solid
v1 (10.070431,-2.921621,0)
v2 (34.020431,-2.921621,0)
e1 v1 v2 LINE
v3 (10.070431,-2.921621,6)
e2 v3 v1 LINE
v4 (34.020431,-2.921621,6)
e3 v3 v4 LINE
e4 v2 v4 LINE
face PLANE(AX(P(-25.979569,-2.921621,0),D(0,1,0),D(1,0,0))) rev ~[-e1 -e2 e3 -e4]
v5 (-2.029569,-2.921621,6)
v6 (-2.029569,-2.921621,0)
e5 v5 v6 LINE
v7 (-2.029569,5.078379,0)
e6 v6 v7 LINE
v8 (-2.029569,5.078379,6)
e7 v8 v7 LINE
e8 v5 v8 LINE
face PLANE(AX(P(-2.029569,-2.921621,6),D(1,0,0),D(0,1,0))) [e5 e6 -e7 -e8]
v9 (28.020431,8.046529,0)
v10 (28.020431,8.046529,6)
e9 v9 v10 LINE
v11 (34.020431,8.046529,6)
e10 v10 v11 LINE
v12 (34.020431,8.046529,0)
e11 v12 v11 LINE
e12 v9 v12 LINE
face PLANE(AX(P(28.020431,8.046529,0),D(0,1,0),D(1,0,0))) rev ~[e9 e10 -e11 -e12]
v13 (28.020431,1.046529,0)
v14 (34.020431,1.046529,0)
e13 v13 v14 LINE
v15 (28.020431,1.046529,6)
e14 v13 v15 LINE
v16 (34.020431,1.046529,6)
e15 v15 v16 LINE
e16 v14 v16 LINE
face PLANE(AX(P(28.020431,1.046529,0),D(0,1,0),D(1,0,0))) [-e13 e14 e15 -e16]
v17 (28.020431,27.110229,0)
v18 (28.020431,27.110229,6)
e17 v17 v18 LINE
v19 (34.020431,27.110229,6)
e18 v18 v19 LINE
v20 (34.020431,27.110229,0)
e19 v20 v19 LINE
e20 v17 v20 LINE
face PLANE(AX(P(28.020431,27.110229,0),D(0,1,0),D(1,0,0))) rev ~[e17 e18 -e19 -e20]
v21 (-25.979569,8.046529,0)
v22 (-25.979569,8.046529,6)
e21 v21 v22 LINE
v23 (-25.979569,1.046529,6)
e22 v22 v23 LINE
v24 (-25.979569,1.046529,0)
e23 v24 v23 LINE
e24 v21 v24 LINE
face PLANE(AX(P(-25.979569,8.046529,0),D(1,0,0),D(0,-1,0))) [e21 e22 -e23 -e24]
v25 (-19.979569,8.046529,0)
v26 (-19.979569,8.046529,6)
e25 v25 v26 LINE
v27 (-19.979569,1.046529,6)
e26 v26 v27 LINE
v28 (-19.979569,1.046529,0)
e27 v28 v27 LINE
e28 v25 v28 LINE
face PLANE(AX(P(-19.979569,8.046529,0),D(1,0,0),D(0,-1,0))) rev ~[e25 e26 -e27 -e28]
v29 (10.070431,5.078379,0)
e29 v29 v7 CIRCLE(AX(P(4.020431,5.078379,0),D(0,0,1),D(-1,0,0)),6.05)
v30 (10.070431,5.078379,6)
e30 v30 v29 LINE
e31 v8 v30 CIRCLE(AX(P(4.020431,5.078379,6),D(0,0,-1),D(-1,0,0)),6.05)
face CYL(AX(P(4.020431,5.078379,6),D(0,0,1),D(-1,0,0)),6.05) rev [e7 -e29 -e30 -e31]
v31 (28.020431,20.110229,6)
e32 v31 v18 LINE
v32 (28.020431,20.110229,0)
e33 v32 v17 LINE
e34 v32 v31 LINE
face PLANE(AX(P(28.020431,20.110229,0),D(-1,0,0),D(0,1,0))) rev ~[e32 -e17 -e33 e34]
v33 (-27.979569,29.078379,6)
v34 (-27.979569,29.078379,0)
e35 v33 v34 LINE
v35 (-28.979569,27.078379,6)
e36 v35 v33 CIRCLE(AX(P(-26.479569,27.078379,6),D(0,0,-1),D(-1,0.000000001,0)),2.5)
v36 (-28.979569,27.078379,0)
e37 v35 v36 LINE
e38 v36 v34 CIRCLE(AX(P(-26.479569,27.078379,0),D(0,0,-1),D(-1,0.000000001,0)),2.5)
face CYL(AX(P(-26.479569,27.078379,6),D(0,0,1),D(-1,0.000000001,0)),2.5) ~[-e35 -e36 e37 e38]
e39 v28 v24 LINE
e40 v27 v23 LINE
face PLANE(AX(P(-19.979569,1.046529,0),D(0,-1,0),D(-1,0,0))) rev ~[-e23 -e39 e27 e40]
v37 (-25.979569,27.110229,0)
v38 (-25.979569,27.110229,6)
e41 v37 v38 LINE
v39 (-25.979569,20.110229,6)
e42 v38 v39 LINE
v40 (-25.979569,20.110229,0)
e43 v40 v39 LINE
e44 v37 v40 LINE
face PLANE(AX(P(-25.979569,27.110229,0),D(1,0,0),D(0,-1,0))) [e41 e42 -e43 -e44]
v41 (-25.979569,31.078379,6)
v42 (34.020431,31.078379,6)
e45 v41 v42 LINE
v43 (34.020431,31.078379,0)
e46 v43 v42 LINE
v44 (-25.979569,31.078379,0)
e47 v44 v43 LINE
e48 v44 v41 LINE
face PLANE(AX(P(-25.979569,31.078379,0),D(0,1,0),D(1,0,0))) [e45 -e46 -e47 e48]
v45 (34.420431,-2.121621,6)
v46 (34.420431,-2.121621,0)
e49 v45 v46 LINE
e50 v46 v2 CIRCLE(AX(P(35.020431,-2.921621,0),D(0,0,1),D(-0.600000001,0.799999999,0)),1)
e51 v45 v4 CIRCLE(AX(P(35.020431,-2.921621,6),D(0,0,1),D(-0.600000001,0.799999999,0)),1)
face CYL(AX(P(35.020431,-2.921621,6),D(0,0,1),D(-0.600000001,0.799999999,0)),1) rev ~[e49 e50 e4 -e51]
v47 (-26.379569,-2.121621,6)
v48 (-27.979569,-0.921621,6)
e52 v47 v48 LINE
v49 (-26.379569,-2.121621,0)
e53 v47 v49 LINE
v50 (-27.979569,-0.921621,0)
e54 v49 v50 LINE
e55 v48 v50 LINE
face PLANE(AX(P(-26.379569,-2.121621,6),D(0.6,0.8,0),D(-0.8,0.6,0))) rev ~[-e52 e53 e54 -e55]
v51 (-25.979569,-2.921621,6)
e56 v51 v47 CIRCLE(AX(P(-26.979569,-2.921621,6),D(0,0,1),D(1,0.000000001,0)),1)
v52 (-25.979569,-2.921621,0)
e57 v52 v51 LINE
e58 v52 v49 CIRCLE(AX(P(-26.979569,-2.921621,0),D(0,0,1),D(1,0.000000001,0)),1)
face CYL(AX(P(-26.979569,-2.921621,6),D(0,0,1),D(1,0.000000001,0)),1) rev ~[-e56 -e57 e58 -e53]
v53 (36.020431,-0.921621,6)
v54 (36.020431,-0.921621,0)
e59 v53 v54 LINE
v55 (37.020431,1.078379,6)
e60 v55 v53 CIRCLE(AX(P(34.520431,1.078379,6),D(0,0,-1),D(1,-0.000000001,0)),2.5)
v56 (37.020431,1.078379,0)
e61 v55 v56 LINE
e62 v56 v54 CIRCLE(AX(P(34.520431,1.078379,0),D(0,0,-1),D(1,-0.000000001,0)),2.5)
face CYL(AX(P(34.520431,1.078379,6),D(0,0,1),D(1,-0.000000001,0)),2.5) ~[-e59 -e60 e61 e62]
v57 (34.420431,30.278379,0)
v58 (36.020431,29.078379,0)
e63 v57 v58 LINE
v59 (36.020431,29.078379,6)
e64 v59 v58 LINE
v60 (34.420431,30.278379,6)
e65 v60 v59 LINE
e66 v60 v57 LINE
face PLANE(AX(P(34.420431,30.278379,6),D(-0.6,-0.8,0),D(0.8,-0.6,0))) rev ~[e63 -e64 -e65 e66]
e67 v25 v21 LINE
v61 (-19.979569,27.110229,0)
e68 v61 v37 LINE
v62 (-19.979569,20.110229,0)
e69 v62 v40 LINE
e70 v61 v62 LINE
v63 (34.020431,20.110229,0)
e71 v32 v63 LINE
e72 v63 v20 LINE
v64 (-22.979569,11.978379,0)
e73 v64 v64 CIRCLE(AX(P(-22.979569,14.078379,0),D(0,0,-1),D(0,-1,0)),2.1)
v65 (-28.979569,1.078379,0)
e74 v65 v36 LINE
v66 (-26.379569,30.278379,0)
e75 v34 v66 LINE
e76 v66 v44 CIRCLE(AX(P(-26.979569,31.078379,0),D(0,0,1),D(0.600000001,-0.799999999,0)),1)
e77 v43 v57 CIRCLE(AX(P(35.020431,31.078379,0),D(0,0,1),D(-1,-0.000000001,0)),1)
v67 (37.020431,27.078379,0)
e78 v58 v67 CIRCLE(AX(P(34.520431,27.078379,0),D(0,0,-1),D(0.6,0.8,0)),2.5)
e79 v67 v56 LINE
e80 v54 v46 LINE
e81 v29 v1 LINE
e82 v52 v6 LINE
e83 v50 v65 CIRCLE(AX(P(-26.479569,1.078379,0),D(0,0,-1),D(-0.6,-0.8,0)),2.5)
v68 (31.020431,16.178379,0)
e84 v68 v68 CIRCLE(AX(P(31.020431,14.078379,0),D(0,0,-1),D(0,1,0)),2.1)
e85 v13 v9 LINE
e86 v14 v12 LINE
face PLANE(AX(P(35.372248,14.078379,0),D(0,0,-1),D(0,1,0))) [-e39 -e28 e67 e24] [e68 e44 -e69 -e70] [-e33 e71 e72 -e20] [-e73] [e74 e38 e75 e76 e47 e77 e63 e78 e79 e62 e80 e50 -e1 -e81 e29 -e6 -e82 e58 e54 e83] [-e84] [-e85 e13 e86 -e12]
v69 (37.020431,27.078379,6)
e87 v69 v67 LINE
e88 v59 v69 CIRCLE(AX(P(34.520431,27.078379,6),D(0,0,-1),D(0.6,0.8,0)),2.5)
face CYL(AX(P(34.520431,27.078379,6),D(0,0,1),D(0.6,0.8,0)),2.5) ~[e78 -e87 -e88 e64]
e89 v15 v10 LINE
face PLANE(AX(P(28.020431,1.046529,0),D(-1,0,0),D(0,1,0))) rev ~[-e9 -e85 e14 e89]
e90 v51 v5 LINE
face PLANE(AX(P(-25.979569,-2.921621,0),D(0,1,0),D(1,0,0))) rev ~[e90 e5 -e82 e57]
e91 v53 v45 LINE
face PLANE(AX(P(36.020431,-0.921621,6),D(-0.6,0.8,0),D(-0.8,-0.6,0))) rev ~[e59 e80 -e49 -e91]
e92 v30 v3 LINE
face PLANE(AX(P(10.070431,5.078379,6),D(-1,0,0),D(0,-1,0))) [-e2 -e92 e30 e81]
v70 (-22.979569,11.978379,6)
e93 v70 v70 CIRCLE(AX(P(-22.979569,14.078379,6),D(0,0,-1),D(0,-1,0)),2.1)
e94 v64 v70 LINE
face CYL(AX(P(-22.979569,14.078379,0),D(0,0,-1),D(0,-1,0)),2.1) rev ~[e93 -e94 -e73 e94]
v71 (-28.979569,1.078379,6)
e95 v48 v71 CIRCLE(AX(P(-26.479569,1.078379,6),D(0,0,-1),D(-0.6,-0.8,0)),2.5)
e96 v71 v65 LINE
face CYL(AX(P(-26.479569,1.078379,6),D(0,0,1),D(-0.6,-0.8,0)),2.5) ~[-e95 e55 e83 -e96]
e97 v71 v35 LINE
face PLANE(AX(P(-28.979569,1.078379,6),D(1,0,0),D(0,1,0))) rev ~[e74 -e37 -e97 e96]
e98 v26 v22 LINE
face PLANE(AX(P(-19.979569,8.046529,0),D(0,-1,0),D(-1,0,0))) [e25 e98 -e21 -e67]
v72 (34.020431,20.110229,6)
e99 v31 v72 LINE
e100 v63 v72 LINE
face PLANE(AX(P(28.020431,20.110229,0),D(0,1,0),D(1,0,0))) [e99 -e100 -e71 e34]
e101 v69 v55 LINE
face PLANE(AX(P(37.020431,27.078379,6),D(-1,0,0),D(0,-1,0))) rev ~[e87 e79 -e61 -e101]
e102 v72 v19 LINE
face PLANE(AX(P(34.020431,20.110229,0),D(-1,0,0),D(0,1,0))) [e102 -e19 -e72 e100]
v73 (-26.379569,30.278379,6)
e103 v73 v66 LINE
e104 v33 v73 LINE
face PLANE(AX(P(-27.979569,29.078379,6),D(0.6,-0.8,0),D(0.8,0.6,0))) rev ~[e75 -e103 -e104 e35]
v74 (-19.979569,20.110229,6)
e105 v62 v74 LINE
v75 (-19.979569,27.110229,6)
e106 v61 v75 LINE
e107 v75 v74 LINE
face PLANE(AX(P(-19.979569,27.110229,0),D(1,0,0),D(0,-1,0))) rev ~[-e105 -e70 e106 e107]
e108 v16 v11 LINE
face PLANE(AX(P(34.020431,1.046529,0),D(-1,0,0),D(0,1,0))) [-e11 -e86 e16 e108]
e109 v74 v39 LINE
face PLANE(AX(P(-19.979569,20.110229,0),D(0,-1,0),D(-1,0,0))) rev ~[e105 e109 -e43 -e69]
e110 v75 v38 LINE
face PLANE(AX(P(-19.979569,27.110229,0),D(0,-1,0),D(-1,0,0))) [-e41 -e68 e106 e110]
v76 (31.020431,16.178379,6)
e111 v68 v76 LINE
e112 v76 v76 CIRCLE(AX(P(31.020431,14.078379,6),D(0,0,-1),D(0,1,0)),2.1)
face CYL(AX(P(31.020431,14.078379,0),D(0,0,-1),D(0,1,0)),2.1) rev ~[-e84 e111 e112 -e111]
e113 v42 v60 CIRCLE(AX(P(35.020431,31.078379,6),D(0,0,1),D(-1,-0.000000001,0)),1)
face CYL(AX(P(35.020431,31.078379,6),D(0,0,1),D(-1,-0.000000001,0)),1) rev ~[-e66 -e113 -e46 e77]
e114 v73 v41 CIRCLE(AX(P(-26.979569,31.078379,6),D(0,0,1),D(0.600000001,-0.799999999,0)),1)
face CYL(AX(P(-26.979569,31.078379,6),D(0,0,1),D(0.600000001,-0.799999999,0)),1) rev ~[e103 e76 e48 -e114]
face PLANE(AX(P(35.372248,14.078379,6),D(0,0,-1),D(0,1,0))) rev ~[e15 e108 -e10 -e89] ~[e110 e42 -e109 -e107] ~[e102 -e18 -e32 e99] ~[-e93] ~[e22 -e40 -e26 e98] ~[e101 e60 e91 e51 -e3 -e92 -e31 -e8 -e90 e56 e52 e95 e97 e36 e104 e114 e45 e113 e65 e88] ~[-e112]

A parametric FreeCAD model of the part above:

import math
import FreeCAD as App
import Part
import Sketcher


def add_polygon(sketch, points):
    """Adds a closed chain of lines whose ends are joined by coincident constraints."""
    first, n = sketch.GeometryCount, len(points)
    for a, b in zip(points, points[1:] + points[:1]):
        sketch.addGeometry(Part.LineSegment(App.Vector(*a, 0), App.Vector(*b, 0)), False)
    for i in range(n):
        sketch.addConstraint(Sketcher.Constraint("Coincident", first + i, 2, first + (i + 1) % n, 1))

doc = App.newDocument("Part")
body = doc.addObject("PartDesign::Body", "Body")

# Sketch on XY plane
sketch1 = body.newObject("Sketcher::SketchObject", "Sketch")
sketch1.AttachmentSupport = (doc.getObject("XY_Plane"), [""])
sketch1.MapMode = "FlatFace"
add_polygon(sketch1, [(-25.979569, 31.078379), (-25.979569, -2.921621), (34.020431, -2.921621), (34.020431, 31.078379)])  # lines 0-3
sketch1.addConstraint([
    Sketcher.Constraint("Vertical", 0),
    Sketcher.Constraint("Horizontal", 1),
    Sketcher.Constraint("Vertical", 2),
    Sketcher.Constraint("Horizontal", 3),
    Sketcher.Constraint("DistanceX", 1, 1, 1, 2, 60.0),
    Sketcher.Constraint("DistanceY", 0, 2, 0, 1, 34.0),
    Sketcher.Constraint("DistanceX", 0, 2, -1, 1, 25.979569),
    Sketcher.Constraint("DistanceY", 0, 2, -1, 1, 2.921621),
])
pad1 = body.newObject("PartDesign::Pad", "Pad")
pad1.Profile = sketch1
pad1.Length = 6

# Sketch on XY plane
sketch2 = body.newObject("Sketcher::SketchObject", "Sketch001")
sketch2.AttachmentSupport = (doc.getObject("XY_Plane"), [""])
sketch2.MapMode = "FlatFace"
sketch2.AttachmentOffset = App.Placement(App.Vector(0, 0, 6), App.Rotation())
sketch2.addGeometry([
    Part.LineSegment(App.Vector(-2.029569, 5.078379, 0), App.Vector(-2.029569, -2.921621, 0)),
    Part.ArcOfCircle(Part.Circle(App.Vector(4.020431, -2.921621, 0), App.Vector(0, 0, 1), 6.05), math.radians(180), math.radians(360)),
    Part.LineSegment(App.Vector(10.070431, -2.921621, 0), App.Vector(10.070431, 5.078379, 0)),
    Part.ArcOfCircle(Part.Circle(App.Vector(4.020431, 5.078379, 0), App.Vector(0, 0, 1), 6.05), math.radians(0), math.radians(180)),
], False)
sketch2.addConstraint([
    Sketcher.Constraint("Tangent", 0, 2, 1, 1),
    Sketcher.Constraint("Tangent", 1, 2, 2, 1),
    Sketcher.Constraint("Tangent", 2, 2, 3, 1),
    Sketcher.Constraint("Tangent", 3, 2, 0, 1),
    Sketcher.Constraint("Vertical", 0),
    Sketcher.Constraint("Vertical", 2),
    Sketcher.Constraint("DistanceY", 0, 2, 0, 1, 8.0),
    Sketcher.Constraint("Radius", 1, 6.05),
    Sketcher.Constraint("DistanceX", -1, 1, 1, 3, 4.020431),
    Sketcher.Constraint("DistanceY", 1, 3, -1, 1, 2.921621),
])
pocket1 = body.newObject("PartDesign::Pocket", "Pocket")
pocket1.Profile = sketch2
pocket1.Type = "ThroughAll"

# Sketch on XY plane
sketch3 = body.newObject("Sketcher::SketchObject", "Sketch002")
sketch3.AttachmentSupport = (doc.getObject("XY_Plane"), [""])
sketch3.MapMode = "FlatFace"
sketch3.AttachmentOffset = App.Placement(App.Vector(0, 0, 6), App.Rotation())
sketch3.addGeometry([
    Part.LineSegment(App.Vector(-28.979569, 1.078379, 0), App.Vector(-28.979569, 27.078379, 0)),  # 0
    Part.ArcOfCircle(Part.Circle(App.Vector(-26.479569, 27.078379, 0), App.Vector(0, 0, 1), 2.5), math.radians(126.869898), math.radians(180)),  # 1
    Part.LineSegment(App.Vector(-27.979569, 29.078379, 0), App.Vector(-26.379569, 30.278379, 0)),  # 2
    Part.ArcOfCircle(Part.Circle(App.Vector(-26.979569, 31.078379, 0), App.Vector(0, 0, 1), 1), math.radians(-53.130102), math.radians(0)),  # 3
    Part.LineSegment(App.Vector(-25.979569, 31.078379, 0), App.Vector(-25.979569, -2.921621, 0)),  # 4
    Part.ArcOfCircle(Part.Circle(App.Vector(-26.979569, -2.921621, 0), App.Vector(0, 0, 1), 1), math.radians(0), math.radians(53.130102)),  # 5
    Part.LineSegment(App.Vector(-26.379569, -2.121621, 0), App.Vector(-27.979569, -0.921621, 0)),  # 6
    Part.ArcOfCircle(Part.Circle(App.Vector(-26.479569, 1.078379, 0), App.Vector(0, 0, 1), 2.5), math.radians(-180), math.radians(-126.869898)),  # 7
], False)
sketch3.addConstraint([
    Sketcher.Constraint("Tangent", 0, 2, 1, 2),
    Sketcher.Constraint("Tangent", 1, 1, 2, 1),
    Sketcher.Constraint("Tangent", 2, 2, 3, 1),
    Sketcher.Constraint("Tangent", 3, 2, 4, 1),
    Sketcher.Constraint("Tangent", 4, 2, 5, 1),
    Sketcher.Constraint("Tangent", 5, 2, 6, 1),
    Sketcher.Constraint("Tangent", 6, 2, 7, 2),
    Sketcher.Constraint("Tangent", 7, 1, 0, 1),
    Sketcher.Constraint("Vertical", 0),
    Sketcher.Constraint("Vertical", 4),
    Sketcher.Constraint("Equal", 3, 5),
    Sketcher.Constraint("Equal", 1, 7),
    Sketcher.Constraint("Vertical", 2, 2, 5, 2),
    Sketcher.Constraint("Radius", 3, 1.0),
    Sketcher.Constraint("Radius", 1, 2.5),
    Sketcher.Constraint("DistanceY", 0, 1, 0, 2, 26.0),
    Sketcher.Constraint("DistanceY", 4, 2, 4, 1, 34.0),
    Sketcher.Constraint("Distance", 2, 2.0),
    Sketcher.Constraint("DistanceX", 1, 3, -1, 1, 26.479569),
    Sketcher.Constraint("DistanceY", -1, 1, 1, 3, 27.078379),
])
pad2 = body.newObject("PartDesign::Pad", "Pad001")
pad2.Profile = sketch3
pad2.Length = 6
pad2.Reversed = True

# Sketch on XY plane
sketch4 = body.newObject("Sketcher::SketchObject", "Sketch003")
sketch4.AttachmentSupport = (doc.getObject("XY_Plane"), [""])
sketch4.MapMode = "FlatFace"
sketch4.addGeometry(Part.Circle(App.Vector(-22.979569, 14.078379, 0), App.Vector(0, 0, 1), 2.1), False)  # 0
add_polygon(sketch4, [(-25.979569, 8.046529), (-19.979569, 8.046529), (-19.979569, 1.046529), (-25.979569, 1.046529)])  # lines 1-4
add_polygon(sketch4, [(-25.979569, 27.110229), (-19.979569, 27.110229), (-19.979569, 20.110229), (-25.979569, 20.110229)])  # lines 5-8
sketch4.addConstraint([
    Sketcher.Constraint("Horizontal", 1),
    Sketcher.Constraint("Vertical", 2),
    Sketcher.Constraint("Horizontal", 3),
    Sketcher.Constraint("Vertical", 4),
    Sketcher.Constraint("Horizontal", 5),
    Sketcher.Constraint("Vertical", 6),
    Sketcher.Constraint("Horizontal", 7),
    Sketcher.Constraint("Vertical", 8),
    Sketcher.Constraint("Vertical", 2, 2, 5, 2),
    Sketcher.Constraint("Vertical", 4, 2, 7, 2),
    Sketcher.Constraint("Equal", 4, 6),
    Sketcher.Constraint("Diameter", 0, 4.2),
    Sketcher.Constraint("DistanceX", 1, 1, 1, 2, 6.0),
    Sketcher.Constraint("DistanceY", 2, 2, 2, 1, 7.0),
    Sketcher.Constraint("DistanceX", 0, 3, 1, 2, 3.0),
    Sketcher.Constraint("DistanceY", 1, 2, 5, 2, 19.0637),
    Sketcher.Constraint("DistanceX", 0, 3, -1, 1, 22.979569),
    Sketcher.Constraint("DistanceY", -1, 1, 0, 3, 14.078379),
    Sketcher.Constraint("DistanceY", -1, 1, 1, 2, 8.046529),
])
pocket2 = body.newObject("PartDesign::Pocket", "Pocket001")
pocket2.Profile = sketch4
pocket2.Type = "ThroughAll"
pocket2.Reversed = True

# Sketch on XY plane
sketch5 = body.newObject("Sketcher::SketchObject", "Sketch004")
sketch5.AttachmentSupport = (doc.getObject("XY_Plane"), [""])
sketch5.MapMode = "FlatFace"
sketch5.AttachmentOffset = App.Placement(App.Vector(0, 0, 6), App.Rotation())
sketch5.addGeometry([
    Part.LineSegment(App.Vector(37.020431, 27.078379, 0), App.Vector(37.020431, 1.078379, 0)),  # 0
    Part.ArcOfCircle(Part.Circle(App.Vector(34.520431, 1.078379, 0), App.Vector(0, 0, 1), 2.5), math.radians(-53.130102), math.radians(0)),  # 1
    Part.LineSegment(App.Vector(36.020431, -0.921621, 0), App.Vector(34.420431, -2.121621, 0)),  # 2
    Part.ArcOfCircle(Part.Circle(App.Vector(35.020431, -2.921621, 0), App.Vector(0, 0, 1), 1), math.radians(126.869898), math.radians(180)),  # 3
    Part.LineSegment(App.Vector(34.020431, -2.921621, 0), App.Vector(34.020431, 31.078379, 0)),  # 4
    Part.ArcOfCircle(Part.Circle(App.Vector(35.020431, 31.078379, 0), App.Vector(0, 0, 1), 1), math.radians(-180), math.radians(-126.869898)),  # 5
    Part.LineSegment(App.Vector(34.420431, 30.278379, 0), App.Vector(36.020431, 29.078379, 0)),  # 6
    Part.ArcOfCircle(Part.Circle(App.Vector(34.520431, 27.078379, 0), App.Vector(0, 0, 1), 2.5), math.radians(0), math.radians(53.130102)),  # 7
], False)
sketch5.addConstraint([
    Sketcher.Constraint("Tangent", 0, 2, 1, 2),
    Sketcher.Constraint("Tangent", 1, 1, 2, 1),
    Sketcher.Constraint("Tangent", 2, 2, 3, 1),
    Sketcher.Constraint("Tangent", 3, 2, 4, 1),
    Sketcher.Constraint("Tangent", 4, 2, 5, 1),
    Sketcher.Constraint("Tangent", 5, 2, 6, 1),
    Sketcher.Constraint("Tangent", 6, 2, 7, 2),
    Sketcher.Constraint("Tangent", 7, 1, 0, 1),
    Sketcher.Constraint("Vertical", 0),
    Sketcher.Constraint("Vertical", 4),
    Sketcher.Constraint("Equal", 3, 5),
    Sketcher.Constraint("Equal", 1, 7),
    Sketcher.Constraint("Vertical", 2, 2, 5, 2),
    Sketcher.Constraint("Radius", 3, 1.0),
    Sketcher.Constraint("Radius", 1, 2.5),
    Sketcher.Constraint("DistanceY", 0, 2, 0, 1, 26.0),
    Sketcher.Constraint("DistanceY", 4, 1, 4, 2, 34.0),
    Sketcher.Constraint("Distance", 2, 2.0),
    Sketcher.Constraint("DistanceX", -1, 1, 1, 3, 34.520431),
    Sketcher.Constraint("DistanceY", -1, 1, 1, 3, 1.078379),
])
pad3 = body.newObject("PartDesign::Pad", "Pad002")
pad3.Profile = sketch5
pad3.Length = 6
pad3.Reversed = True

# Sketch on XY plane
sketch6 = body.newObject("Sketcher::SketchObject", "Sketch005")
sketch6.AttachmentSupport = (doc.getObject("XY_Plane"), [""])
sketch6.MapMode = "FlatFace"
sketch6.addGeometry(Part.Circle(App.Vector(31.020431, 14.078379, 0), App.Vector(0, 0, 1), 2.1), False)  # 0
add_polygon(sketch6, [(34.020431, 20.110229), (28.020431, 20.110229), (28.020431, 27.110229), (34.020431, 27.110229)])  # lines 1-4
add_polygon(sketch6, [(34.020431, 1.046529), (28.020431, 1.046529), (28.020431, 8.046529), (34.020431, 8.046529)])  # lines 5-8
sketch6.addConstraint([
    Sketcher.Constraint("Horizontal", 1),
    Sketcher.Constraint("Vertical", 2),
    Sketcher.Constraint("Horizontal", 3),
    Sketcher.Constraint("Vertical", 4),
    Sketcher.Constraint("Horizontal", 5),
    Sketcher.Constraint("Vertical", 6),
    Sketcher.Constraint("Horizontal", 7),
    Sketcher.Constraint("Vertical", 8),
    Sketcher.Constraint("Vertical", 2, 2, 5, 2),
    Sketcher.Constraint("Vertical", 4, 2, 7, 2),
    Sketcher.Constraint("Equal", 4, 6),
    Sketcher.Constraint("Diameter", 0, 4.2),
    Sketcher.Constraint("DistanceX", 1, 2, 1, 1, 6.0),
    Sketcher.Constraint("DistanceY", 2, 1, 2, 2, 7.0),
    Sketcher.Constraint("DistanceX", 1, 2, 0, 3, 3.0),
    Sketcher.Constraint("DistanceY", 5, 2, 1, 2, 19.0637),
    Sketcher.Constraint("DistanceX", -1, 1, 0, 3, 31.020431),
    Sketcher.Constraint("DistanceY", -1, 1, 0, 3, 14.078379),
    Sketcher.Constraint("DistanceY", -1, 1, 1, 2, 20.110229),
])
pocket3 = body.newObject("PartDesign::Pocket", "Pocket002")
pocket3.Profile = sketch6
pocket3.Type = "ThroughAll"
pocket3.Reversed = True

doc.recompute()
